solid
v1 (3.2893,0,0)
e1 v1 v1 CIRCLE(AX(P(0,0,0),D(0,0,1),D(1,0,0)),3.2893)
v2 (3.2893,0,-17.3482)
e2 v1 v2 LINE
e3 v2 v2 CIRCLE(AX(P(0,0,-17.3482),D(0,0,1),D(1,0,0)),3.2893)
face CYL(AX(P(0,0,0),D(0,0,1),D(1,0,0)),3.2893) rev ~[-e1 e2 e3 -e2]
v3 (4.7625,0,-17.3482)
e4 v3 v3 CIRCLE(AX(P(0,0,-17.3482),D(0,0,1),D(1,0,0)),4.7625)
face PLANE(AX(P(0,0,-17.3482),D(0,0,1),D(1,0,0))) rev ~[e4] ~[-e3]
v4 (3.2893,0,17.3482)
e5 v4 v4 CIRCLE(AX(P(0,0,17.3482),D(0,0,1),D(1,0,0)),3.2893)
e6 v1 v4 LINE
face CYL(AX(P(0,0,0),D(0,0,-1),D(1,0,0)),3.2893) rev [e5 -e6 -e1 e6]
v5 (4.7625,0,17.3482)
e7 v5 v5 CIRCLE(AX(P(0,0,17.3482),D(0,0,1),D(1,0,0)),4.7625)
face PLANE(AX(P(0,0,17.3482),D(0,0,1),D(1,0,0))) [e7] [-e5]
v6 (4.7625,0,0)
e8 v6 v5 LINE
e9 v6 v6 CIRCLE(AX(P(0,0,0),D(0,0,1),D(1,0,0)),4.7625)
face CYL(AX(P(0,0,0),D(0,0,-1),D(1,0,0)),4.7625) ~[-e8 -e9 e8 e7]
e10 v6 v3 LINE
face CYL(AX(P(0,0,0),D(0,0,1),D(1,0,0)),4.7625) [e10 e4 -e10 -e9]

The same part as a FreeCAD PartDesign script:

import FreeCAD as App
import Part
import Sketcher

V = App.Vector
Q = App.Units.Quantity

doc = App.newDocument("Part")
body = doc.addObject("PartDesign::Body", "Body")

# Sketch on XY plane
sketch1 = body.newObject("Sketcher::SketchObject", "Sketch")
sketch1.AttachmentSupport = (doc.getObject("XY_Plane"), [""])
sketch1.MapMode = "FlatFace"
sketch1.addGeometry(Part.Circle(V(0, 0, 0), V(0, 0, 1), 4.7625), False)
sketch1.addGeometry(Part.Circle(V(0, 0, 0), V(0, 0, 1), 3.2893), False)
sketch1.addConstraint(Sketcher.Constraint("Coincident", 0, 3, -1, 1))
sketch1.addConstraint(Sketcher.Constraint("Coincident", 1, 3, -1, 1))
sketch1.addConstraint(Sketcher.Constraint("Diameter", 0, Q("0.375 in")))
sketch1.addConstraint(Sketcher.Constraint("Diameter", 1, Q("0.259 in")))
pad1 = body.newObject("PartDesign::Pad", "Pad")
pad1.Profile = sketch1
pad1.Length = Q("1.366 in")
pad1.Midplane = True

doc.recompute()
